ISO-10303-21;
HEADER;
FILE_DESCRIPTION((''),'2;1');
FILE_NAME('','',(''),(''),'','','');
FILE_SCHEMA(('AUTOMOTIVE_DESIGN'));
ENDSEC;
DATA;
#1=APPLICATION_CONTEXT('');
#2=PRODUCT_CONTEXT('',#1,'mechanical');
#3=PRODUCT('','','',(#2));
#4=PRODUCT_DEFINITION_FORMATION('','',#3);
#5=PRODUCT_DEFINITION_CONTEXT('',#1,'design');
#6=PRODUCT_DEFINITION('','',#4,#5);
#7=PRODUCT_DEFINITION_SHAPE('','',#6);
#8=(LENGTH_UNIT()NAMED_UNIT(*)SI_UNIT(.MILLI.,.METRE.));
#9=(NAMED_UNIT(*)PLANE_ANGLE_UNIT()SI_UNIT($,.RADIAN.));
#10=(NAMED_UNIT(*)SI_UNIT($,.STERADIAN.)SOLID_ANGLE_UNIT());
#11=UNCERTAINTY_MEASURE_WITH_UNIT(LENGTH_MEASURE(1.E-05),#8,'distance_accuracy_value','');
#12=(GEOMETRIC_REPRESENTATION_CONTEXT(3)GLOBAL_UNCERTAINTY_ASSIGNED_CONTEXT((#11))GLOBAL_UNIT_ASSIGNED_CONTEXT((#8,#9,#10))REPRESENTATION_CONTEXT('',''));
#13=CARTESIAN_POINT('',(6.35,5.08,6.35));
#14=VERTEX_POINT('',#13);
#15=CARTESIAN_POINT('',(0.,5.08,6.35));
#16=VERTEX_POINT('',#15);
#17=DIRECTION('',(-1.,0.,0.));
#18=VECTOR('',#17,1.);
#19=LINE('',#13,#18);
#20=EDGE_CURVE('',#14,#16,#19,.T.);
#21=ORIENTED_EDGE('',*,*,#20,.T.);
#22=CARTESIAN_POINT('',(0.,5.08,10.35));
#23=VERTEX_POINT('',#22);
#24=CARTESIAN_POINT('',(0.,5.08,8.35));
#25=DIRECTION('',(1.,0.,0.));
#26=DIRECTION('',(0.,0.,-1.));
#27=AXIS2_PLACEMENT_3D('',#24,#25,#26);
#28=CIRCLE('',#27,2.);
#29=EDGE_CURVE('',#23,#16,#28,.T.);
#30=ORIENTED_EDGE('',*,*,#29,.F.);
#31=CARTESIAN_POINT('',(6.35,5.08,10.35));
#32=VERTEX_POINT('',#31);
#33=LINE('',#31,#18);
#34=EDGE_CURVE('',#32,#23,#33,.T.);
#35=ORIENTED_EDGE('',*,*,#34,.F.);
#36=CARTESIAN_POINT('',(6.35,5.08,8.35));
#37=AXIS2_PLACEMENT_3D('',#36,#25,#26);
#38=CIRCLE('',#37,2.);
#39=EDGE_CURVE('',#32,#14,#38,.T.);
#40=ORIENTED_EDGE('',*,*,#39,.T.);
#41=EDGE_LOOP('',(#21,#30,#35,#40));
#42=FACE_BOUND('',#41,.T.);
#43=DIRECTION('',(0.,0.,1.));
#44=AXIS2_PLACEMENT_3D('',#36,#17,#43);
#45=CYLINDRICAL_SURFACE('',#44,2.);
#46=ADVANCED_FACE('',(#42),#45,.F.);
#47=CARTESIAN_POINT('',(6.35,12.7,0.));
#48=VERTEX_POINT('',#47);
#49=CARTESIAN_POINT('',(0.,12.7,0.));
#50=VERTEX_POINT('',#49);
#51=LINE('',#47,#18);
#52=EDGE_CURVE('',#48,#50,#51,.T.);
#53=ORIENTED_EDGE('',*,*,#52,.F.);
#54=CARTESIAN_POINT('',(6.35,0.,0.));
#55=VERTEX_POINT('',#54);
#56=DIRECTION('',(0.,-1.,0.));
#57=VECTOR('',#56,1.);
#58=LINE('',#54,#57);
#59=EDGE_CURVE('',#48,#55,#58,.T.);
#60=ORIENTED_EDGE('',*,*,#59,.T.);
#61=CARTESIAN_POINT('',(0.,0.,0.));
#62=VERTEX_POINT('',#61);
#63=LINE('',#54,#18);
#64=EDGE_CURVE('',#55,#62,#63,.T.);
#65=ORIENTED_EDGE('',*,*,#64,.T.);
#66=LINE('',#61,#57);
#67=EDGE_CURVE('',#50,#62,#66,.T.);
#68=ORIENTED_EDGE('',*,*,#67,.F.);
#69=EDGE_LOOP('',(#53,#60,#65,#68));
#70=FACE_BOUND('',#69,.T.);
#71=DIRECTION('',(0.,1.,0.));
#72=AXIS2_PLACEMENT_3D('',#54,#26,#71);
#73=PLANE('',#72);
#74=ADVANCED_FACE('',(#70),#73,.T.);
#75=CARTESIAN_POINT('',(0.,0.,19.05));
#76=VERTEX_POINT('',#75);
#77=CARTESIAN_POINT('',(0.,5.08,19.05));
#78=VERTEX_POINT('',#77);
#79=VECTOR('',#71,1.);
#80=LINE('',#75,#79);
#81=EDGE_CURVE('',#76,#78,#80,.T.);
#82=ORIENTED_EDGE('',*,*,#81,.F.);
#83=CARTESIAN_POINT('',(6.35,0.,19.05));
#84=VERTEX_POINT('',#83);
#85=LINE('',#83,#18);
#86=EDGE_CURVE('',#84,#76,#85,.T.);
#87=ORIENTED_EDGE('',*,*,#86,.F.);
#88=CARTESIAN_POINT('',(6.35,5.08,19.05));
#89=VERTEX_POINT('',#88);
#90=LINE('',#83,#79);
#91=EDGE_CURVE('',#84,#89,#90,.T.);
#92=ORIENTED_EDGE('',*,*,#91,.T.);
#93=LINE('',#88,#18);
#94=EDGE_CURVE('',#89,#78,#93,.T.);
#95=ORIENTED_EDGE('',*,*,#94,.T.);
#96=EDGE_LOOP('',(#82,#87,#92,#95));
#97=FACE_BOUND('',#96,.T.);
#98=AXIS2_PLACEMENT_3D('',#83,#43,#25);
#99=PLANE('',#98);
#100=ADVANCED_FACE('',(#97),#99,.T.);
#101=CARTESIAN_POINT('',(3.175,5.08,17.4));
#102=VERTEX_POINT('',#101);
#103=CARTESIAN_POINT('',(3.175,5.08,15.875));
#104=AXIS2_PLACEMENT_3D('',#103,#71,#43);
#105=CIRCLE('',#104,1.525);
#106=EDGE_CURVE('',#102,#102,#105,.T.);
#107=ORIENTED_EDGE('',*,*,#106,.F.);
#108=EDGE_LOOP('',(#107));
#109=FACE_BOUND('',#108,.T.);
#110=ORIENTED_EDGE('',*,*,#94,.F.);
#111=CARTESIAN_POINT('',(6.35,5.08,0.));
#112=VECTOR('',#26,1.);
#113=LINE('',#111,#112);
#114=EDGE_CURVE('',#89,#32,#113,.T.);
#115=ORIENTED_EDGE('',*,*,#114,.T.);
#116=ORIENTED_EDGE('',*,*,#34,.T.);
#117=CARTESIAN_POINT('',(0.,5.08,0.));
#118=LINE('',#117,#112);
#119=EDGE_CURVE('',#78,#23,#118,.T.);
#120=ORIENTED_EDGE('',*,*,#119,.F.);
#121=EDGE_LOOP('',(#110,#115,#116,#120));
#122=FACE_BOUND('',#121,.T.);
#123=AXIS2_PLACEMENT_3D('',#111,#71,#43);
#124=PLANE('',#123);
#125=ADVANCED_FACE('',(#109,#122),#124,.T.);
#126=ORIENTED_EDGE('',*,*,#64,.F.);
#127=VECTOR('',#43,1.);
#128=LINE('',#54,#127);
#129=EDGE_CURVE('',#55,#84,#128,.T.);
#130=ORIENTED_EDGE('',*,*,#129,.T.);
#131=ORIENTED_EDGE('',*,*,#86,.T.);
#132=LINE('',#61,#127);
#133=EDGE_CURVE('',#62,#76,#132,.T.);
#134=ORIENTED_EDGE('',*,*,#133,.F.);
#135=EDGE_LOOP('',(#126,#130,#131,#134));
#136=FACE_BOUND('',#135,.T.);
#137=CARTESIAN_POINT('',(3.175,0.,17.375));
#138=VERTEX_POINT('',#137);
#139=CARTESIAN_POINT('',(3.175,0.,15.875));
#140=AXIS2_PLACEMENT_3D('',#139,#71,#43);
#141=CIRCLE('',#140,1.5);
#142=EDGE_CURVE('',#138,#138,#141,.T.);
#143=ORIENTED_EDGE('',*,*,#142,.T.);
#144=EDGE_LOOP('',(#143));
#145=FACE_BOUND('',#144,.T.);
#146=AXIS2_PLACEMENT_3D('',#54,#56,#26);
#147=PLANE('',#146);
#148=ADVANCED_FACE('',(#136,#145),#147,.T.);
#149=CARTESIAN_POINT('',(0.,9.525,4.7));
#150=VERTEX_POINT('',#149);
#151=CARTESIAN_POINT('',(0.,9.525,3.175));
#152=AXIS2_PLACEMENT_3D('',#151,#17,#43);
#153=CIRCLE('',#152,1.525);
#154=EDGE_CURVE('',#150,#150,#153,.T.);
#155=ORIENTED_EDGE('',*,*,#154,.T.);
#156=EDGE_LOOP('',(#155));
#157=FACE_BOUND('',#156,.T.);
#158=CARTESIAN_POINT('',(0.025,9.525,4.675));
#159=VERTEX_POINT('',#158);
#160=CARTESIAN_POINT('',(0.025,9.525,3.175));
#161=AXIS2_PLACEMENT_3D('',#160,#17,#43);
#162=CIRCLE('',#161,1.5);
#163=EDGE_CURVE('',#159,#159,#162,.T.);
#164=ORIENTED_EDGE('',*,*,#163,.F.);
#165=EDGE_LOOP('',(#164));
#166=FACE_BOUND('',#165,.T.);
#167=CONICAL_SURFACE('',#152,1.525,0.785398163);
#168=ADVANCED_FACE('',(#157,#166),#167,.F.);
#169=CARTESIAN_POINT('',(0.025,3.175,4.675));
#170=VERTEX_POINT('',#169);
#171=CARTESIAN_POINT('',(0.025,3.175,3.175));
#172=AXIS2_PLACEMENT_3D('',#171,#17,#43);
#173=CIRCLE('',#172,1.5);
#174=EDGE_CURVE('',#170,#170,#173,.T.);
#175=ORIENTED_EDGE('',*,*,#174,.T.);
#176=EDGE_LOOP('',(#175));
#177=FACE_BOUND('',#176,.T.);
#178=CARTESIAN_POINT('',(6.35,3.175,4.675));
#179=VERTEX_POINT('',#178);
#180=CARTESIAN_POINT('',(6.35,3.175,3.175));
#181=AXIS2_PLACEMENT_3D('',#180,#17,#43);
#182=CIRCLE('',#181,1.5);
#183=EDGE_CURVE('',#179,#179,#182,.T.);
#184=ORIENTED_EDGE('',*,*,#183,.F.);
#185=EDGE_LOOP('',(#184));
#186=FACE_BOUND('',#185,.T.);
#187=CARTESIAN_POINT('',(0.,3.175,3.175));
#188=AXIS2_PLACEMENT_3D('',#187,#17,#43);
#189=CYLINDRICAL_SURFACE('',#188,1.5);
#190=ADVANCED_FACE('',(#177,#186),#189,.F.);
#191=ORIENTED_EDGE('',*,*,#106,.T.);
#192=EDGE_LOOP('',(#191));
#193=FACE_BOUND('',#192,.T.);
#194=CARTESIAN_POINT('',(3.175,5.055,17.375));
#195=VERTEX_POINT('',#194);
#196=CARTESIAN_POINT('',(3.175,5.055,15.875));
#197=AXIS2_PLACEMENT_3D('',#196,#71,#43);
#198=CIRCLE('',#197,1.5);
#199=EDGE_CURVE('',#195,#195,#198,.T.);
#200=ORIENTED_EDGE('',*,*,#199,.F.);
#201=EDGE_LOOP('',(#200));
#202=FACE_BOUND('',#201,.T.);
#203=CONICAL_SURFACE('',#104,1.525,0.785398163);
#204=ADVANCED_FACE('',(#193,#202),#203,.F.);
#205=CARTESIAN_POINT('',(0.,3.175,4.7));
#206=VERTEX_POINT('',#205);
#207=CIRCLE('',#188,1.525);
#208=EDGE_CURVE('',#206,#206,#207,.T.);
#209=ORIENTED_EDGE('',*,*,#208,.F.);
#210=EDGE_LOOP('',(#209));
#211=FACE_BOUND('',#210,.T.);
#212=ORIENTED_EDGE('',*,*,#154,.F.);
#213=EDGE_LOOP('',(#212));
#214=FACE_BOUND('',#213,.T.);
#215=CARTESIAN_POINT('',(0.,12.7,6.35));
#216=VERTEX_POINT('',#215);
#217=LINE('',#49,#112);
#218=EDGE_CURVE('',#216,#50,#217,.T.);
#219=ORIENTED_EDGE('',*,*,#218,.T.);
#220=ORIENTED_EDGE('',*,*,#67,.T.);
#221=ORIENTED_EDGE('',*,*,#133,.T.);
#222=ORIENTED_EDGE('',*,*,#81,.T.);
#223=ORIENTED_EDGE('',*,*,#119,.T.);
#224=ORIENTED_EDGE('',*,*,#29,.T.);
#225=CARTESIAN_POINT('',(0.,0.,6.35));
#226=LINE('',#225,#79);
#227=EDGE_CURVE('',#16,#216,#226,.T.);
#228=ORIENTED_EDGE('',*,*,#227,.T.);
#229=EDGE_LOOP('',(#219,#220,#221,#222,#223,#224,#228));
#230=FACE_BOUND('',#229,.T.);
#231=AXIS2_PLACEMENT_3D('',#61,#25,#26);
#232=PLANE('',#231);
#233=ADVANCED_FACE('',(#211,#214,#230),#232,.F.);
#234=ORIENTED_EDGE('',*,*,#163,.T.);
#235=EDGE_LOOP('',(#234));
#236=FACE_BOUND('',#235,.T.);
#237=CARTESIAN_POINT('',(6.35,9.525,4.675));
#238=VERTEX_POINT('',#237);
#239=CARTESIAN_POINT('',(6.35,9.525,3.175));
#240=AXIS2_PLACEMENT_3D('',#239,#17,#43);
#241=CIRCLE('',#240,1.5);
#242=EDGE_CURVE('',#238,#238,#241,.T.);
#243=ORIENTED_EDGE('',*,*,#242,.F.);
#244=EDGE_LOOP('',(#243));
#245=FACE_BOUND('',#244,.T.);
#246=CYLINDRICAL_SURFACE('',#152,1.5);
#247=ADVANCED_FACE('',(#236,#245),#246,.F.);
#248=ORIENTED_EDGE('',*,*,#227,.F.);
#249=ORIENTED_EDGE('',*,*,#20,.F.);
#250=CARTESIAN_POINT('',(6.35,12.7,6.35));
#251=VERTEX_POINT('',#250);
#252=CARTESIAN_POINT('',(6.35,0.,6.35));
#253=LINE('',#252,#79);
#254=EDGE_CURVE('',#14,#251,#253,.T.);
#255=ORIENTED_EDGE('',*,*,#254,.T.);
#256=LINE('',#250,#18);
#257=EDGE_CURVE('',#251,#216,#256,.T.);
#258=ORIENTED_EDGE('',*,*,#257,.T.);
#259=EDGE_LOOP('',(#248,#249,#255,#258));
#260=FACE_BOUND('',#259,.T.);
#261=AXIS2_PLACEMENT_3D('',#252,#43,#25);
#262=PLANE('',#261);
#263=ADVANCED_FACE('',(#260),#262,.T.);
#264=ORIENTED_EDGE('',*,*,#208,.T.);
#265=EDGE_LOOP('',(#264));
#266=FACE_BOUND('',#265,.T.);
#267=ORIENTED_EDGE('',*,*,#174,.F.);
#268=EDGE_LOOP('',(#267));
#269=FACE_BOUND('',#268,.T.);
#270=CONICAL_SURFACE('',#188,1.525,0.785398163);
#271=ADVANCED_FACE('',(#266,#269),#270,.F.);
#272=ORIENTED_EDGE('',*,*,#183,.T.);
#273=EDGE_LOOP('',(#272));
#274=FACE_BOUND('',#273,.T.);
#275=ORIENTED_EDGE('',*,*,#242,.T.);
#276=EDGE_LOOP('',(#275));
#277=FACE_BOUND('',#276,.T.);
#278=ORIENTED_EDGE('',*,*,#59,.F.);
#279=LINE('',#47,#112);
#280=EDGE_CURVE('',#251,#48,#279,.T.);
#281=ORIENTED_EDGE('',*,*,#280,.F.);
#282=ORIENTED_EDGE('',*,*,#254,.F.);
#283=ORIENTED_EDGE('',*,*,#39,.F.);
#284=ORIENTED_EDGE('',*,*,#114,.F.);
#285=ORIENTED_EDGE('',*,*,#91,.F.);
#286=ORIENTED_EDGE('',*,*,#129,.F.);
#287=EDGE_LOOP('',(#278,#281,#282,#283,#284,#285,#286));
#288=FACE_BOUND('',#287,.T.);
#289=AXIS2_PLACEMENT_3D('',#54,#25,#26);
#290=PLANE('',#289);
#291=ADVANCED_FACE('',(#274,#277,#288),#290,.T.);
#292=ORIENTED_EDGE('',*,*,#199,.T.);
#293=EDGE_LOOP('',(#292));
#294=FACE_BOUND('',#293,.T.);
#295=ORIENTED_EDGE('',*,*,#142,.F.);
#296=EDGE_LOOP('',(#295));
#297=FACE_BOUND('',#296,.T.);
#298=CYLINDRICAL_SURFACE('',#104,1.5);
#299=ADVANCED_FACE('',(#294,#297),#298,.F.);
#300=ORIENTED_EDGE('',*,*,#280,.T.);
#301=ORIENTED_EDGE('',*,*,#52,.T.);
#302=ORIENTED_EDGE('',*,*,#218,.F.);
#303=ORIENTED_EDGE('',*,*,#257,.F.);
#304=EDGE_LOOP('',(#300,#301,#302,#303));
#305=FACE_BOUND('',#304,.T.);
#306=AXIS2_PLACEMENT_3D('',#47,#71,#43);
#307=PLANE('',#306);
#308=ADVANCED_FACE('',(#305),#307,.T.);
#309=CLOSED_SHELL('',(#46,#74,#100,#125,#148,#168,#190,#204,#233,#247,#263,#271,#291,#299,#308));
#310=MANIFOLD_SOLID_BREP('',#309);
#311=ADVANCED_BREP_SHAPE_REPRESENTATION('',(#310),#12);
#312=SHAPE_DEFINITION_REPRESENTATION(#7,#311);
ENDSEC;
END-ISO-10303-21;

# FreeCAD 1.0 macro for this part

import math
import FreeCAD as App
import Part
import Sketcher
from FreeCAD import Vector
Q = App.Units.Quantity

doc = App.newDocument("Part")
body = doc.addObject("PartDesign::Body", "Body")

# Sketch on YZ plane
sketch1 = body.newObject("Sketcher::SketchObject", "Sketch")
sketch1.AttachmentSupport = (doc.getObject("YZ_Plane"), [""])
sketch1.MapMode = "FlatFace"
sketch1.addGeometry(Part.LineSegment(Vector(0, 19.1, 0), Vector(0, 0, 0)), False)
sketch1.addGeometry(Part.LineSegment(Vector(0, 0, 0), Vector(12.7, 0, 0)), False)
sketch1.addGeometry(Part.LineSegment(Vector(12.7, 0, 0), Vector(12.7, 6.3, 0)), False)
sketch1.addGeometry(Part.LineSegment(Vector(12.7, 6.3, 0), Vector(5.1, 6.3, 0)), False)
sketch1.addGeometry(Part.ArcOfCircle(Part.Circle(Vector(5.1, 8.3, 0), Vector(0, 0, 1), 2), math.radians(90), math.radians(270)), False)
sketch1.addGeometry(Part.LineSegment(Vector(5.1, 10.3, 0), Vector(5.1, 19.1, 0)), False)
sketch1.addGeometry(Part.LineSegment(Vector(5.1, 19.1, 0), Vector(0, 19.1, 0)), False)
sketch1.addConstraint(Sketcher.Constraint("Coincident", 0, 2, 1, 1))
sketch1.addConstraint(Sketcher.Constraint("Coincident", 1, 2, 2, 1))
sketch1.addConstraint(Sketcher.Constraint("Coincident", 2, 2, 3, 1))
sketch1.addConstraint(Sketcher.Constraint("Tangent", 3, 2, 4, 2))
sketch1.addConstraint(Sketcher.Constraint("Coincident", 4, 1, 5, 1))
sketch1.addConstraint(Sketcher.Constraint("Coincident", 5, 2, 6, 1))
sketch1.addConstraint(Sketcher.Constraint("Coincident", 6, 2, 0, 1))
sketch1.addConstraint(Sketcher.Constraint("Vertical", 0))
sketch1.addConstraint(Sketcher.Constraint("Horizontal", 1))
sketch1.addConstraint(Sketcher.Constraint("Vertical", 2))
sketch1.addConstraint(Sketcher.Constraint("Horizontal", 3))
sketch1.addConstraint(Sketcher.Constraint("Vertical", 5))
sketch1.addConstraint(Sketcher.Constraint("Horizontal", 6))
sketch1.addConstraint(Sketcher.Constraint("Coincident", 0, 2, -1, 1))
sketch1.addConstraint(Sketcher.Constraint("Vertical", 3, 2, 4, 1))
sketch1.addConstraint(Sketcher.Constraint("DistanceX", 1, 1, 1, 2, Q("0.5 in")))
sketch1.addConstraint(Sketcher.Constraint("DistanceX", 3, 2, 3, 1, Q("0.3 in")))
sketch1.addConstraint(Sketcher.Constraint("DistanceY", 0, 2, 0, 1, Q("0.75 in")))
sketch1.addConstraint(Sketcher.Constraint("DistanceY", 2, 1, 2, 2, Q("0.25 in")))
sketch1.addConstraint(Sketcher.Constraint("Radius", 4, 2.0))
pad1 = body.newObject("PartDesign::Pad", "Pad")
pad1.Profile = sketch1
pad1.Length = Q("0.25 in")

# Sketch on YZ plane
sketch2 = body.newObject("Sketcher::SketchObject", "Sketch001")
sketch2.AttachmentSupport = (doc.getObject("YZ_Plane"), [""])
sketch2.MapMode = "FlatFace"
sketch2.addGeometry(Part.Circle(Vector(3.2, 3.2, 0), Vector(0, 0, 1), 1.5), False)
sketch2.addGeometry(Part.Circle(Vector(9.5, 3.2, 0), Vector(0, 0, 1), 1.5), False)
sketch2.addConstraint(Sketcher.Constraint("Equal", 0, 1))
sketch2.addConstraint(Sketcher.Constraint("Horizontal", 0, 3, 1, 3))
sketch2.addConstraint(Sketcher.Constraint("Diameter", 0, 3.0))
sketch2.addConstraint(Sketcher.Constraint("DistanceX", 0, 3, 1, 3, Q("0.25 in")))
sketch2.addConstraint(Sketcher.Constraint("DistanceX", -1, 1, 0, 3, Q("0.125 in")))
sketch2.addConstraint(Sketcher.Constraint("DistanceY", -1, 1, 0, 3, Q("0.125 in")))
doc.recompute()
hole = body.newObject("PartDesign::Hole", "Hole")
hole.Profile = sketch2
hole.ThreadType = "None"
hole.Diameter = 3
hole.DepthType = "ThroughAll"
hole.HoleCutType = "Countersink"
hole.HoleCutDiameter = 3.05
hole.HoleCutCountersinkAngle = 90
hole.Reversed = True

# Sketch on XZ plane
sketch3 = body.newObject("Sketcher::SketchObject", "Sketch002")
sketch3.AttachmentSupport = (doc.getObject("XZ_Plane"), [""])
sketch3.MapMode = "FlatFace"
sketch3.AttachmentOffset = App.Placement(Vector(0, 0, -0.2 * 25.4), App.Rotation())
sketch3.addGeometry(Part.Circle(Vector(3.2, 15.9, 0), Vector(0, 0, 1), 1.5), False)
sketch3.addConstraint(Sketcher.Constraint("Diameter", 0, 3.0))
sketch3.addConstraint(Sketcher.Constraint("DistanceX", -1, 1, 0, 3, Q("0.125 in")))
sketch3.addConstraint(Sketcher.Constraint("DistanceY", -1, 1, 0, 3, Q("0.625 in")))
doc.recompute()
hole2 = body.newObject("PartDesign::Hole", "Hole001")
hole2.Profile = sketch3
hole2.ThreadType = "None"
hole2.Diameter = 3
hole2.DepthType = "ThroughAll"
hole2.HoleCutType = "Countersink"
hole2.HoleCutDiameter = 3.05
hole2.HoleCutCountersinkAngle = 90
hole2.Reversed = True

doc.recompute()
